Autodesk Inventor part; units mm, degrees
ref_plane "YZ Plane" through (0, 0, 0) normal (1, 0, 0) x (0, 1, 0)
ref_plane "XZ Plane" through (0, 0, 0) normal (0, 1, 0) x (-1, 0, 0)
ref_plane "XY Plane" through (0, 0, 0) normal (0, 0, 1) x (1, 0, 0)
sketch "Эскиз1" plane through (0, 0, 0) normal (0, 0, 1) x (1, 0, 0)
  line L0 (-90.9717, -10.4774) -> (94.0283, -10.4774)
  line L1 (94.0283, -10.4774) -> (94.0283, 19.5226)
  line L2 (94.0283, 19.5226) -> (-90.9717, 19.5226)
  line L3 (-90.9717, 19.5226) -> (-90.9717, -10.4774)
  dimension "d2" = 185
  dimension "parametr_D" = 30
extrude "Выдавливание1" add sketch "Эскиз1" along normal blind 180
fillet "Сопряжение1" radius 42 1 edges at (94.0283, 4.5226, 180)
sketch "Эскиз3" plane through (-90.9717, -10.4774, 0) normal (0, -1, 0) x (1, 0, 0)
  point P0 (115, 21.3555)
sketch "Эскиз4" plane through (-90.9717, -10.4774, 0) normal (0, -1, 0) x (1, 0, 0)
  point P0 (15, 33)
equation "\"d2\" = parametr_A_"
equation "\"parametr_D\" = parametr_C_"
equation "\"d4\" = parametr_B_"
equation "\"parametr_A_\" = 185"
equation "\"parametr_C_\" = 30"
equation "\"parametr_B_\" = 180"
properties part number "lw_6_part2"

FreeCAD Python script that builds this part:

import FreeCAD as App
import Part
import Sketcher

V = App.Vector
Q = App.Units.Quantity


def edges_at(feature, points):
    """Names of the edges that pass closest to the given points."""
    edges = feature.Shape.Edges
    near = lambda p: min(range(len(edges)), key=lambda i: edges[i].distToShape(Part.Vertex(*p))[0])
    return sorted({f"Edge{near(p) + 1}" for p in points})

doc = App.newDocument("Part")
params = doc.addObject("Spreadsheet::Sheet", "Params")
for row, (alias, value) in enumerate([
    ("sketch1_width", "185 mm"),
    ("sketch1_height", "30 mm"),
    ("pad1_length", "180 mm"),
    ("fillet_radius", "42 mm"),
], start=1):
    params.set(f"A{row}", alias)
    params.set(f"B{row}", "=" + value)
    params.setAlias(f"B{row}", alias)

body = doc.addObject("PartDesign::Body", "Body")

# Sketch on XY plane
sketch1 = body.newObject("Sketcher::SketchObject", "Sketch")
sketch1.AttachmentSupport = (doc.getObject("XY_Plane"), [""])
sketch1.MapMode = "FlatFace"
sketch1.addGeometry(Part.LineSegment(V(-90.9717, 19.5226, 0), V(-90.9717, -10.4774, 0)), False)
sketch1.addGeometry(Part.LineSegment(V(-90.9717, -10.4774, 0), V(94.0283, -10.4774, 0)), False)
sketch1.addGeometry(Part.LineSegment(V(94.0283, -10.4774, 0), V(94.0283, 19.5226, 0)), False)
sketch1.addGeometry(Part.LineSegment(V(94.0283, 19.5226, 0), V(-90.9717, 19.5226, 0)), False)
sketch1.addConstraint(Sketcher.Constraint("Coincident", 0, 2, 1, 1))
sketch1.addConstraint(Sketcher.Constraint("Coincident", 1, 2, 2, 1))
sketch1.addConstraint(Sketcher.Constraint("Coincident", 2, 2, 3, 1))
sketch1.addConstraint(Sketcher.Constraint("Coincident", 3, 2, 0, 1))
sketch1.addConstraint(Sketcher.Constraint("Vertical", 0))
sketch1.addConstraint(Sketcher.Constraint("Horizontal", 1))
sketch1.addConstraint(Sketcher.Constraint("Vertical", 2))
sketch1.addConstraint(Sketcher.Constraint("Horizontal", 3))
sketch1.addConstraint(Sketcher.Constraint("DistanceX", 1, 1, 1, 2, Q("185 mm")))
sketch1.addConstraint(Sketcher.Constraint("DistanceY", 0, 2, 0, 1, Q("30 mm")))
sketch1.addConstraint(Sketcher.Constraint("DistanceX", 0, 2, -1, 1, Q("90.9717 mm")))
sketch1.addConstraint(Sketcher.Constraint("DistanceY", 0, 2, -1, 1, Q("10.4774 mm")))
sketch1.setExpression("Constraints[8]", "Params.sketch1_width")
sketch1.setExpression("Constraints[9]", "Params.sketch1_height")
pad1 = body.newObject("PartDesign::Pad", "Pad")
pad1.Profile = sketch1
pad1.setExpression("Length", "Params.pad1_length")
doc.recompute()

fillet = body.newObject("PartDesign::Fillet", "Fillet")
fillet.Base = (pad1, edges_at(pad1, [(94.028, 4.523, 180)]))
fillet.setExpression("Radius", "Params.fillet_radius")

doc.recompute()
